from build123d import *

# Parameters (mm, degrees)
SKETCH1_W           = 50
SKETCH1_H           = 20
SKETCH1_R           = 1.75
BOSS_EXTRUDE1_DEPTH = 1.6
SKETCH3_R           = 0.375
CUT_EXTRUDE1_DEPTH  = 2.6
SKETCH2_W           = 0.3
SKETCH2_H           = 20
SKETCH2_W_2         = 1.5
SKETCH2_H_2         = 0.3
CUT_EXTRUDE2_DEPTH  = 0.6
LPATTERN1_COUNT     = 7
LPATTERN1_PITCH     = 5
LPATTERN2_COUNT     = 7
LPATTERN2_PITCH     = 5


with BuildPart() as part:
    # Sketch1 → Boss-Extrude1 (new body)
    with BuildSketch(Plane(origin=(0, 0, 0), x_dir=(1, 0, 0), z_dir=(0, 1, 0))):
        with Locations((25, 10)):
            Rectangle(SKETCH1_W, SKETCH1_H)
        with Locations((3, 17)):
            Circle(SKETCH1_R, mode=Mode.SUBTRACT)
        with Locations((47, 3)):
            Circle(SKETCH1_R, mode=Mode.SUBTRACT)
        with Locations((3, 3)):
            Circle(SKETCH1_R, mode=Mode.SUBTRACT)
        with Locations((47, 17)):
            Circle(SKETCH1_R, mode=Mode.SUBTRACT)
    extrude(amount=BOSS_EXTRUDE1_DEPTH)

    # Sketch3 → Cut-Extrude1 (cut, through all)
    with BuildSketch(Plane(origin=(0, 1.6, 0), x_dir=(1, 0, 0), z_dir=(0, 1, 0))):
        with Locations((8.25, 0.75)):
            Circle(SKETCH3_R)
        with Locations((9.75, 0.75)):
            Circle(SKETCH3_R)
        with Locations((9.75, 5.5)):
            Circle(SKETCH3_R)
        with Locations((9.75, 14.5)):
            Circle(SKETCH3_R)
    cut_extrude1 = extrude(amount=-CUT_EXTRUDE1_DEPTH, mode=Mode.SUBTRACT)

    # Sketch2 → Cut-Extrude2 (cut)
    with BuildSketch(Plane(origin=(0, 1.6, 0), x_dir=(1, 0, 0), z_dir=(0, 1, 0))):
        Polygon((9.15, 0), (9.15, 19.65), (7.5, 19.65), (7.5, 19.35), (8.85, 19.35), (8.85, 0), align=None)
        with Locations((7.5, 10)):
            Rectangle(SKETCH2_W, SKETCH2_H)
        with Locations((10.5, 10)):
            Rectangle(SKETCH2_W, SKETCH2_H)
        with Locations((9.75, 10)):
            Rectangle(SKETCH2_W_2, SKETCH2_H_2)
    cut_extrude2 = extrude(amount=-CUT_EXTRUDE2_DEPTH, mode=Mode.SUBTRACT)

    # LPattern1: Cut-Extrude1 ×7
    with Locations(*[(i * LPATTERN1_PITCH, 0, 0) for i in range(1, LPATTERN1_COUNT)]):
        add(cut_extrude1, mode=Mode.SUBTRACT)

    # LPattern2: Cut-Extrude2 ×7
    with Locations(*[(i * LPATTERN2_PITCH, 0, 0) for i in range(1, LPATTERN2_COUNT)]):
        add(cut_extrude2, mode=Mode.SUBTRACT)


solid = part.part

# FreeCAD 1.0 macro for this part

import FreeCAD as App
import Part
import Sketcher

V = App.Vector
Q = App.Units.Quantity


def add_polygon(sketch, points):
    """Adds a closed chain of lines whose ends are joined by coincident constraints."""
    first, n = sketch.GeometryCount, len(points)
    for a, b in zip(points, points[1:] + points[:1]):
        sketch.addGeometry(Part.LineSegment(App.Vector(*a, 0), App.Vector(*b, 0)), False)
    for i in range(n):
        sketch.addConstraint(Sketcher.Constraint("Coincident", first + i, 2, first + (i + 1) % n, 1))

doc = App.newDocument("Part")
params = doc.addObject("Spreadsheet::Sheet", "Params")
for row, (alias, value) in enumerate([
    ("sketch1_diameter", "3.5 mm"),
    ("sketch1_width", "50 mm"),
    ("sketch1_height", "20 mm"),
    ("pad1_length", "1.6 mm"),
    ("sketch2_diameter", "0.75 mm"),
    ("sketch3_height", "20 mm"),
    ("sketch3_width", "0.3 mm"),
    ("sketch3_width2", "1.2 mm"),
    ("sketch3_height2", "9.5 mm"),
    ("sketch3_height3", "19.35 mm"),
    ("pocket2_length", "0.6 mm"),
    ("linearpattern_pitch", "5 mm"),
    ("linearpattern2_pitch", "5 mm"),
], start=1):
    params.set(f"A{row}", alias)
    params.set(f"B{row}", "=" + value)
    params.setAlias(f"B{row}", alias)

body = doc.addObject("PartDesign::Body", "Body")

# Sketch on XZ plane
sketch1 = body.newObject("Sketcher::SketchObject", "Sketch")
sketch1.AttachmentSupport = (doc.getObject("XZ_Plane"), [""])
sketch1.MapMode = "FlatFace"
add_polygon(sketch1, [(0, -20), (0, 0), (50, 0), (50, -20)])  # lines 0-3
sketch1.addGeometry(Part.Circle(V(3, -3, 0), V(0, 0, 1), 1.8), False)  # 4
sketch1.addGeometry(Part.Circle(V(47, -3, 0), V(0, 0, 1), 1.8), False)  # 5
sketch1.addGeometry(Part.Circle(V(3, -17, 0), V(0, 0, 1), 1.8), False)  # 6
sketch1.addGeometry(Part.Circle(V(47, -17, 0), V(0, 0, 1), 1.8), False)  # 7
sketch1.addConstraint([
    Sketcher.Constraint("Vertical", 0),
    Sketcher.Constraint("Horizontal", 1),
    Sketcher.Constraint("Vertical", 2),
    Sketcher.Constraint("Horizontal", 3),
    Sketcher.Constraint("Coincident", 0, 2, -1, 1),
    Sketcher.Constraint("Equal", 4, 5),
    Sketcher.Constraint("Equal", 5, 6),
    Sketcher.Constraint("Equal", 6, 7),
    Sketcher.Constraint("Horizontal", 4, 3, 5, 3),
    Sketcher.Constraint("Horizontal", 6, 3, 7, 3),
    Sketcher.Constraint("Vertical", 4, 3, 6, 3),
    Sketcher.Constraint("Vertical", 5, 3, 7, 3),
    Sketcher.Constraint("Diameter", 4, Q("3.5 mm")),
    Sketcher.Constraint("DistanceX", 1, 1, 1, 2, Q("50 mm")),
    Sketcher.Constraint("DistanceY", 0, 1, 0, 2, Q("20 mm")),
    Sketcher.Constraint("DistanceX", -1, 1, 4, 3, Q("3 mm")),
    Sketcher.Constraint("DistanceY", 4, 3, -1, 1, Q("3 mm")),
    Sketcher.Constraint("DistanceX", -1, 1, 5, 3, Q("47 mm")),
    Sketcher.Constraint("DistanceY", 6, 3, -1, 1, Q("17 mm")),
])
sketch1.setExpression("Constraints[16]", "Params.sketch1_diameter")
sketch1.setExpression("Constraints[17]", "Params.sketch1_width")
sketch1.setExpression("Constraints[18]", "Params.sketch1_height")
pad1 = body.newObject("PartDesign::Pad", "Pad")
pad1.Profile = sketch1
pad1.setExpression("Length", "Params.pad1_length")
pad1.Reversed = True

# Sketch on XZ plane
sketch2 = body.newObject("Sketcher::SketchObject", "Sketch001")
sketch2.AttachmentSupport = (doc.getObject("XZ_Plane"), [""])
sketch2.MapMode = "FlatFace"
sketch2.AttachmentOffset = App.Placement(V(0, 0, -1.6), App.Rotation())
sketch2.addGeometry([
    Part.Circle(V(8.25, -0.75, 0), V(0, 0, 1), 0.38),
    Part.Circle(V(9.75, -0.75, 0), V(0, 0, 1), 0.38),
    Part.Circle(V(9.75, -5.5, 0), V(0, 0, 1), 0.38),
    Part.Circle(V(9.75, -14.5, 0), V(0, 0, 1), 0.38),
], False)
sketch2.addConstraint([
    Sketcher.Constraint("Equal", 0, 1),
    Sketcher.Constraint("Equal", 1, 2),
    Sketcher.Constraint("Equal", 2, 3),
    Sketcher.Constraint("Horizontal", 0, 3, 1, 3),
    Sketcher.Constraint("Vertical", 1, 3, 2, 3),
    Sketcher.Constraint("Vertical", 2, 3, 3, 3),
    Sketcher.Constraint("Diameter", 0, Q("0.75 mm")),
    Sketcher.Constraint("DistanceY", 3, 3, 2, 3, Q("9 mm")),
    Sketcher.Constraint("DistanceY", 2, 3, -1, 1, Q("5.5 mm")),
    Sketcher.Constraint("DistanceX", 0, 3, 1, 3, Q("1.5 mm")),
    Sketcher.Constraint("DistanceX", -1, 1, 0, 3, Q("8.25 mm")),
    Sketcher.Constraint("DistanceY", 0, 3, -1, 1, Q("0.75 mm")),
])
sketch2.setExpression("Constraints[6]", "Params.sketch2_diameter")
pocket1 = body.newObject("PartDesign::Pocket", "Pocket")
pocket1.Profile = sketch2
pocket1.Type = "ThroughAll"
pocket1.Reversed = True

# Sketch on XZ plane
sketch3 = body.newObject("Sketcher::SketchObject", "Sketch002")
sketch3.AttachmentSupport = (doc.getObject("XZ_Plane"), [""])
sketch3.MapMode = "FlatFace"
sketch3.AttachmentOffset = App.Placement(V(0, 0, -1.6), App.Rotation())
add_polygon(sketch3, [(8.85, -19.35), (8.85, 0), (9.15, 0), (9.15, -9.85), (10.35, -9.85), (10.35, 0), (10.65, 0), (10.65, -20), (10.35, -20), (10.35, -10.15), (9.15, -10.15), (9.15, -19.65), (7.65, -19.65), (7.65, -20), (7.35, -20), (7.35, 0), (7.65, 0), (7.65, -19.35)])  # lines 0-17
sketch3.addConstraint([
    Sketcher.Constraint("Vertical", 0),
    Sketcher.Constraint("Horizontal", 1),
    Sketcher.Constraint("Vertical", 2),
    Sketcher.Constraint("Horizontal", 3),
    Sketcher.Constraint("Vertical", 4),
    Sketcher.Constraint("Horizontal", 5),
    Sketcher.Constraint("Vertical", 6),
    Sketcher.Constraint("Horizontal", 7),
    Sketcher.Constraint("Vertical", 8),
    Sketcher.Constraint("Horizontal", 9),
    Sketcher.Constraint("Vertical", 10),
    Sketcher.Constraint("Horizontal", 11),
    Sketcher.Constraint("Vertical", 12),
    Sketcher.Constraint("Horizontal", 13),
    Sketcher.Constraint("Vertical", 14),
    Sketcher.Constraint("Horizontal", 15),
    Sketcher.Constraint("Vertical", 16),
    Sketcher.Constraint("Horizontal", 17),
    Sketcher.Constraint("PointOnObject", 0, 2, -1),
    Sketcher.Constraint("PointOnObject", 4, 2, -1),
    Sketcher.Constraint("PointOnObject", 14, 2, -1),
    Sketcher.Constraint("Horizontal", 7, 2, 12, 2),
    Sketcher.Constraint("Vertical", 4, 2, 7, 2),
    Sketcher.Constraint("Vertical", 2, 2, 9, 2),
    Sketcher.Constraint("Vertical", 12, 2, 15, 2),
    Sketcher.Constraint("Equal", 1, 5),
    Sketcher.Constraint("Equal", 7, 13),
    Sketcher.Constraint("Equal", 9, 17),
    Sketcher.Constraint("Equal", 4, 8),
    Sketcher.Constraint("DistanceY", 6, 2, 6, 1, Q("20 mm")),
    Sketcher.Constraint("DistanceX", 1, 1, 1, 2, Q("0.3 mm")),
    Sketcher.Constraint("DistanceX", 3, 1, 3, 2, Q("1.2 mm")),
    Sketcher.Constraint("DistanceY", 10, 2, 10, 1, Q("9.5 mm")),
    Sketcher.Constraint("DistanceY", 0, 1, 0, 2, Q("19.35 mm")),
    Sketcher.Constraint("DistanceY", 2, 2, 2, 1, Q("9.85 mm")),
    Sketcher.Constraint("DistanceX", -1, 1, 0, 2, Q("8.85 mm")),
])
sketch3.setExpression("Constraints[47]", "Params.sketch3_height")
sketch3.setExpression("Constraints[48]", "Params.sketch3_width")
sketch3.setExpression("Constraints[49]", "Params.sketch3_width2")
sketch3.setExpression("Constraints[50]", "Params.sketch3_height2")
sketch3.setExpression("Constraints[51]", "Params.sketch3_height3")
pocket2 = body.newObject("PartDesign::Pocket", "Pocket001")
pocket2.Profile = sketch3
pocket2.setExpression("Length", "Params.pocket2_length")
pocket2.Reversed = True
doc.recompute()

linearpattern = body.newObject("PartDesign::LinearPattern", "LinearPattern")
linearpattern.Originals = [pocket1]
linearpattern.Direction = (doc.getObject("X_Axis"), [""])
linearpattern.Mode = "offset"
linearpattern.setExpression("Offset", "Params.linearpattern_pitch")
linearpattern.Occurrences = 7
body.Tip = linearpattern
doc.recompute()

linearpattern2 = body.newObject("PartDesign::LinearPattern", "LinearPattern001")
linearpattern2.Originals = [pocket2]
linearpattern2.Direction = (doc.getObject("X_Axis"), [""])
linearpattern2.Mode = "offset"
linearpattern2.setExpression("Offset", "Params.linearpattern2_pitch")
linearpattern2.Occurrences = 7
body.Tip = linearpattern2

doc.recompute()
